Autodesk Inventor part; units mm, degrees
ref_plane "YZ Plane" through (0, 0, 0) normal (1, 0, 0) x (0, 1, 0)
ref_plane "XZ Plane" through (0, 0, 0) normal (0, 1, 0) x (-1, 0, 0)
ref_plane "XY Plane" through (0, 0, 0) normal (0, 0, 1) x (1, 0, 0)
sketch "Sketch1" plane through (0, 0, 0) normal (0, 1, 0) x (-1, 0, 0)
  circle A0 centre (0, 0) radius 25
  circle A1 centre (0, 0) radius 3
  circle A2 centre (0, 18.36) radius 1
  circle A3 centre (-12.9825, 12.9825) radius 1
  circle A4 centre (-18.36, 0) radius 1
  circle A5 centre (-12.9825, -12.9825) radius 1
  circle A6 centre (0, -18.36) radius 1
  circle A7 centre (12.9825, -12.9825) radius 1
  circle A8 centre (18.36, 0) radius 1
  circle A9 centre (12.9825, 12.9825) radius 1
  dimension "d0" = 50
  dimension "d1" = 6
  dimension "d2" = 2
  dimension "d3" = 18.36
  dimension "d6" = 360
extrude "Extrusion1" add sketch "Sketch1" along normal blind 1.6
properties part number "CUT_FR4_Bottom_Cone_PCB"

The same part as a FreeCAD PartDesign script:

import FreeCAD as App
import Part
import Sketcher
Q = App.Units.Quantity

doc = App.newDocument("Part")
body = doc.addObject("PartDesign::Body", "Body")

# Sketch on XZ plane
sketch1 = body.newObject("Sketcher::SketchObject", "Sketch")
sketch1.AttachmentSupport = (doc.getObject("XZ_Plane"), [""])
sketch1.MapMode = "FlatFace"
sketch1.addGeometry([
    Part.Circle(App.Vector(0, 0, 0), App.Vector(0, 0, 1), 25),  # 0
    Part.Circle(App.Vector(12.9825, -12.9825, 0), App.Vector(0, 0, 1), 1),  # 1
    Part.Circle(App.Vector(0, -18.36, 0), App.Vector(0, 0, 1), 1),  # 2
    Part.Circle(App.Vector(-12.9825, -12.9825, 0), App.Vector(0, 0, 1), 1),  # 3
    Part.Circle(App.Vector(18.36, 0, 0), App.Vector(0, 0, 1), 1),  # 4
    Part.Circle(App.Vector(12.9825, 12.9825, 0), App.Vector(0, 0, 1), 1),  # 5
    Part.Circle(App.Vector(0, 0, 0), App.Vector(0, 0, 1), 3),  # 6
    Part.Circle(App.Vector(-18.36, 0, 0), App.Vector(0, 0, 1), 1),  # 7
    Part.Circle(App.Vector(0, 18.36, 0), App.Vector(0, 0, 1), 1),  # 8
    Part.Circle(App.Vector(-12.9825, 12.9825, 0), App.Vector(0, 0, 1), 1),  # 9
], False)
sketch1.addConstraint([
    Sketcher.Constraint("Coincident", 0, 3, -1, 1),
    Sketcher.Constraint("Coincident", 6, 3, -1, 1),
    Sketcher.Constraint("Equal", 1, 2),
    Sketcher.Constraint("Equal", 2, 3),
    Sketcher.Constraint("Equal", 3, 4),
    Sketcher.Constraint("Equal", 4, 5),
    Sketcher.Constraint("Equal", 5, 7),
    Sketcher.Constraint("Equal", 7, 8),
    Sketcher.Constraint("Equal", 8, 9),
    Sketcher.Constraint("Symmetric", 3, 3, 5, 3, -1, 1),
    Sketcher.Constraint("Symmetric", 4, 3, 7, 3, -1, 1),
    Sketcher.Constraint("Symmetric", 2, 3, 8, 3, -1, 1),
    Sketcher.Constraint("Symmetric", 1, 3, 9, 3, -1, 1),
    Sketcher.Constraint("Symmetric", 1, 3, 3, 3, -2),
    Sketcher.Constraint("PointOnObject", 2, 3, -2),
    Sketcher.Constraint("PointOnObject", 4, 3, -1),
    Sketcher.Constraint("Diameter", 0, Q("50 mm")),
    Sketcher.Constraint("Diameter", 1, Q("2 mm")),
    Sketcher.Constraint("Diameter", 6, Q("6 mm")),
    Sketcher.Constraint("DistanceY", 2, 3, -1, 1, Q("18.36 mm")),
    Sketcher.Constraint("DistanceX", -1, 1, 4, 3, Q("18.36 mm")),
    Sketcher.Constraint("DistanceX", 3, 3, 1, 3, Q("25.965 mm")),
    Sketcher.Constraint("DistanceY", 1, 3, 5, 3, Q("25.965 mm")),
])
pad1 = body.newObject("PartDesign::Pad", "Pad")
pad1.Profile = sketch1
pad1.Length = 1.6
pad1.Reversed = True

doc.recompute()
